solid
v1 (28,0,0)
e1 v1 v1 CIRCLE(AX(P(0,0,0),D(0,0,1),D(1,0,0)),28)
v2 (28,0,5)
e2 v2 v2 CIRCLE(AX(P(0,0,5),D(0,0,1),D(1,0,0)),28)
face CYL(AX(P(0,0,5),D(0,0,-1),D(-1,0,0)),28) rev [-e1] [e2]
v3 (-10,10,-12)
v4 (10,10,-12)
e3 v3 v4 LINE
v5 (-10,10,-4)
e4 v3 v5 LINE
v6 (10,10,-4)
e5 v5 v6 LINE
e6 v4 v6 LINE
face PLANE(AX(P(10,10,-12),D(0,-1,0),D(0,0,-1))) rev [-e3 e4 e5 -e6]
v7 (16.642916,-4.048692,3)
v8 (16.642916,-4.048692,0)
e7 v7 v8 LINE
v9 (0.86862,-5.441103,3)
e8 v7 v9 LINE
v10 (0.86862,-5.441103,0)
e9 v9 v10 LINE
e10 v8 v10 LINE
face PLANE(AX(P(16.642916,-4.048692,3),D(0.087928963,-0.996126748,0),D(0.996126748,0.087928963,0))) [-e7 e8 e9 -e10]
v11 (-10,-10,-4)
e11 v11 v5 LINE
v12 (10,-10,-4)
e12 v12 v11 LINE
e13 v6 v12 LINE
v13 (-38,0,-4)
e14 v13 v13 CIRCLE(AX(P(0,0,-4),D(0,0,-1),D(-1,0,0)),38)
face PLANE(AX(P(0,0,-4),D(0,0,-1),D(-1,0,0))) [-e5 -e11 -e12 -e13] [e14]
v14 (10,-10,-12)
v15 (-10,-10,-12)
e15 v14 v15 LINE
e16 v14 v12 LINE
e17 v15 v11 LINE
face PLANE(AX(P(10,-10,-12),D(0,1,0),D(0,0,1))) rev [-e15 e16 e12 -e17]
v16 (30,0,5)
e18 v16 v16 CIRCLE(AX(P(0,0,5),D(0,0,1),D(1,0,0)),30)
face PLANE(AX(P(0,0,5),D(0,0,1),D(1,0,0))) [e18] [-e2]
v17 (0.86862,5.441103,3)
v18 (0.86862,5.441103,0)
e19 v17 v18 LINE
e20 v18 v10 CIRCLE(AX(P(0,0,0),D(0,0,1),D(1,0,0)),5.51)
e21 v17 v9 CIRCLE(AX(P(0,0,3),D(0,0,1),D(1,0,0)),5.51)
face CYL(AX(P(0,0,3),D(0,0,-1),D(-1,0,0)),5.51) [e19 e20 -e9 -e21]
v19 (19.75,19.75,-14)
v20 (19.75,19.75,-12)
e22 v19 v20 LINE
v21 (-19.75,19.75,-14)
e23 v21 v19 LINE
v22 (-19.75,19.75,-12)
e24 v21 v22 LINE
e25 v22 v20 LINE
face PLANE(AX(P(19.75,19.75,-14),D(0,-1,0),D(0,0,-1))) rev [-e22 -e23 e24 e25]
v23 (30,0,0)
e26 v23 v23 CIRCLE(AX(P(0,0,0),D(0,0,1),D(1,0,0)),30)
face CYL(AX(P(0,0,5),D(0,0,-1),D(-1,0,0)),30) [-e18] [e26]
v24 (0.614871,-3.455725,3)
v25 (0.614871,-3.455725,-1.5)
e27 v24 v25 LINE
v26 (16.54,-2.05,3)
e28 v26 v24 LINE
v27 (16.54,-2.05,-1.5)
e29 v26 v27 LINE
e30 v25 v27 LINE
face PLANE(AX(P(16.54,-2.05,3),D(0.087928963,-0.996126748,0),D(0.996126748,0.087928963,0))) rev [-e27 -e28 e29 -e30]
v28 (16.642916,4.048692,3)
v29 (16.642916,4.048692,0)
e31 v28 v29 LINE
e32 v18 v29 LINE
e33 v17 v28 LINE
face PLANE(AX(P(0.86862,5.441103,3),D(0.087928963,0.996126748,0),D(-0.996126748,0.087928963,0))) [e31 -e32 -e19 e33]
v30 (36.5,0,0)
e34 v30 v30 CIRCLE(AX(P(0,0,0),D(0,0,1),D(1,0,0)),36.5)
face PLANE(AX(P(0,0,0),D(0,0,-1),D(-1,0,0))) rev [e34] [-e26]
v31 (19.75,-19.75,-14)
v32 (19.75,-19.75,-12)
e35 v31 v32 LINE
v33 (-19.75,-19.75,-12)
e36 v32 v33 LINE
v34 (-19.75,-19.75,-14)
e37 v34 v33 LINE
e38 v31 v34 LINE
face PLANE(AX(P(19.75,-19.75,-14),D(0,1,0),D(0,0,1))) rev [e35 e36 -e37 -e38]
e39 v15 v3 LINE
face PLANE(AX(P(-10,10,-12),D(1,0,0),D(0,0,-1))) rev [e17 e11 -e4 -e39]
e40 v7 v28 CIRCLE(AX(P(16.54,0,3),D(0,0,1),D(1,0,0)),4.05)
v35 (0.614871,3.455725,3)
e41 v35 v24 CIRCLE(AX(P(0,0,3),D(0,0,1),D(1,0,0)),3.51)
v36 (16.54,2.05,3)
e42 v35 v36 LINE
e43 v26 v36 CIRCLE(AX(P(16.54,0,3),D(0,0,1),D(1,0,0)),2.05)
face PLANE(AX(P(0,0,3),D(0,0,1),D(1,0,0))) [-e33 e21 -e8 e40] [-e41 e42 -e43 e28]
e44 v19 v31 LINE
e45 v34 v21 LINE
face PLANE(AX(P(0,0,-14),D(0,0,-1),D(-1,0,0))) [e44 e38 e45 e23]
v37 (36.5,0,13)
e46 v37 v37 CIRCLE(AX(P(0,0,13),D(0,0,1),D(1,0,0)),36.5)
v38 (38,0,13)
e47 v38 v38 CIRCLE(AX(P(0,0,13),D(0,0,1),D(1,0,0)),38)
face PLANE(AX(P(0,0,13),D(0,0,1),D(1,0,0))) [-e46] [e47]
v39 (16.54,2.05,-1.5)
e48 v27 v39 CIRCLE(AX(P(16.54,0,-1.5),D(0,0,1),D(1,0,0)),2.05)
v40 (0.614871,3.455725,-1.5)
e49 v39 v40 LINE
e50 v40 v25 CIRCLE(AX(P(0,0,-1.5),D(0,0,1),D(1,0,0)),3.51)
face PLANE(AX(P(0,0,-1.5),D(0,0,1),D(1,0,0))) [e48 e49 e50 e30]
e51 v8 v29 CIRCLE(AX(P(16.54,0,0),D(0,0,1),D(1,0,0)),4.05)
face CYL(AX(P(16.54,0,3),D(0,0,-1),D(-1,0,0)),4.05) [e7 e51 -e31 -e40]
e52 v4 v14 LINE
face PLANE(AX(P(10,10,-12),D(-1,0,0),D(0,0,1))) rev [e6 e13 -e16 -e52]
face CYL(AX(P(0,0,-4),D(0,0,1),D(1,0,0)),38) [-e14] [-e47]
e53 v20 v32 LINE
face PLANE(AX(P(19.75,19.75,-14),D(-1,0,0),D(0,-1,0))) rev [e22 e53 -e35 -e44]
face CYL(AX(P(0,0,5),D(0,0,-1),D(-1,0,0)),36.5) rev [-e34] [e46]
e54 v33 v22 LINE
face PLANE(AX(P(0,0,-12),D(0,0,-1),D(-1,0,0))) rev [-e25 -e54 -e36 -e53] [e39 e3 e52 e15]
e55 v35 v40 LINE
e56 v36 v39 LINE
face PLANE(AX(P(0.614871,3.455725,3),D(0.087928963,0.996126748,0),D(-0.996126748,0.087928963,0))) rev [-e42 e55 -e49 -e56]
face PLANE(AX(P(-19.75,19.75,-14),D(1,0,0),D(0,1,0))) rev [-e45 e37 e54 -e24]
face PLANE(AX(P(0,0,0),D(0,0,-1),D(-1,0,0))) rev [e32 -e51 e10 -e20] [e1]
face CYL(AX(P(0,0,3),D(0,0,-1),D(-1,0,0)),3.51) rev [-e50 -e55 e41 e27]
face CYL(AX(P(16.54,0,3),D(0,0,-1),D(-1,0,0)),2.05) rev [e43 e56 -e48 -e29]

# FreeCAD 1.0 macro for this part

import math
import FreeCAD as App
import Part
import Sketcher
from FreeCAD import Vector
Q = App.Units.Quantity


def add_polygon(sketch, points):
    """Adds a closed chain of lines whose ends are joined by coincident constraints."""
    first, n = sketch.GeometryCount, len(points)
    for a, b in zip(points, points[1:] + points[:1]):
        sketch.addGeometry(Part.LineSegment(App.Vector(*a, 0), App.Vector(*b, 0)), False)
    for i in range(n):
        sketch.addConstraint(Sketcher.Constraint("Coincident", first + i, 2, first + (i + 1) % n, 1))

doc = App.newDocument("Part")
params = doc.addObject("Spreadsheet::Sheet", "Params")
for row, (alias, value) in enumerate([
    ("sketch1_diameter", "60 mm"),
    ("sketch1_diameter2", "56 mm"),
    ("pad1_length", "5 mm"),
    ("sketch2_diameter", "76 mm"),
    ("sketch2_diameter2", "73 mm"),
    ("pad2_length", "5 mm"),
    ("sketch3_diameter", "76 mm"),
    ("pad3_length", "4 mm"),
    ("sketch4_radius", "5.51 mm"),
    ("sketch4_radius2", "4.05 mm"),
    ("sketch4_radius3", "2.05 mm"),
    ("sketch4_radius4", "3.51 mm"),
    ("pad4_length", "3 mm"),
    ("sketch5_radius", "3.51 mm"),
    ("sketch5_radius2", "2.05 mm"),
    ("pocket1_length", "1.5 mm"),
    ("sketch6_diameter", "76 mm"),
    ("sketch6_diameter2", "73 mm"),
    ("pad5_length", "8 mm"),
    ("sketch7_width", "20 mm"),
    ("pad6_length", "8 mm"),
    ("sketch8_width", "39.5 mm"),
    ("pad7_length", "2 mm"),
], start=1):
    params.set(f"A{row}", alias)
    params.set(f"B{row}", "=" + value)
    params.setAlias(f"B{row}", alias)

body = doc.addObject("PartDesign::Body", "Body")

# Sketch on XY plane
sketch1 = doc.addObject("Sketcher::SketchObject", "Sketch")
body.addObject(sketch1)
sketch1.AttachmentSupport = (doc.XY_Plane, [""])
sketch1.MapMode = "FlatFace"
sketch1.addGeometry(Part.Circle(Vector(0, 0, 0), Vector(0, 0, 1), 30), False)
sketch1.addGeometry(Part.Circle(Vector(0, 0, 0), Vector(0, 0, 1), 28), False)
sketch1.addConstraint(Sketcher.Constraint("Coincident", 0, 3, -1, 1))
sketch1.addConstraint(Sketcher.Constraint("Coincident", 1, 3, -1, 1))
sketch1.addConstraint(Sketcher.Constraint("Diameter", 0, Q("60 mm")))
sketch1.addConstraint(Sketcher.Constraint("Diameter", 1, Q("56 mm")))
sketch1.setExpression("Constraints[2]", "Params.sketch1_diameter")
sketch1.setExpression("Constraints[3]", "Params.sketch1_diameter2")
pad1 = doc.addObject("PartDesign::Pad", "Pad")
body.addObject(pad1)
pad1.Profile = sketch1
pad1.setExpression("Length", "Params.pad1_length")
body2 = doc.addObject("PartDesign::Body", "Body001")

# Sketch on XY plane
sketch2 = doc.addObject("Sketcher::SketchObject", "Sketch001")
body2.addObject(sketch2)
sketch2.AttachmentSupport = (doc.getObject("XY_Plane001"), [""])
sketch2.MapMode = "FlatFace"
sketch2.addGeometry(Part.Circle(Vector(0, 0, 0), Vector(0, 0, 1), 38), False)
sketch2.addGeometry(Part.Circle(Vector(0, 0, 0), Vector(0, 0, 1), 36), False)
sketch2.addConstraint(Sketcher.Constraint("Coincident", 0, 3, -1, 1))
sketch2.addConstraint(Sketcher.Constraint("Coincident", 1, 3, -1, 1))
sketch2.addConstraint(Sketcher.Constraint("Diameter", 0, Q("76 mm")))
sketch2.addConstraint(Sketcher.Constraint("Diameter", 1, Q("73 mm")))
sketch2.setExpression("Constraints[2]", "Params.sketch2_diameter")
sketch2.setExpression("Constraints[3]", "Params.sketch2_diameter2")
pad2 = doc.addObject("PartDesign::Pad", "Pad001")
body2.addObject(pad2)
pad2.Profile = sketch2
pad2.setExpression("Length", "Params.pad2_length")
body.AllowCompound = True
doc.recompute()

boolean = doc.addObject("PartDesign::Boolean", "Boolean")
body.addObject(boolean)
boolean.Type = "Fuse"
boolean.addObjects([body2])

# Sketch on XY plane
sketch3 = doc.addObject("Sketcher::SketchObject", "Sketch002")
body.addObject(sketch3)
sketch3.AttachmentSupport = (doc.XY_Plane, [""])
sketch3.MapMode = "FlatFace"
sketch3.addGeometry(Part.Circle(Vector(0, 0, 0), Vector(0, 0, 1), 38), False)
sketch3.addConstraint(Sketcher.Constraint("Coincident", 0, 3, -1, 1))
sketch3.addConstraint(Sketcher.Constraint("Diameter", 0, Q("76 mm")))
sketch3.setExpression("Constraints[1]", "Params.sketch3_diameter")
pad3 = doc.addObject("PartDesign::Pad", "Pad002")
body.addObject(pad3)
pad3.Profile = sketch3
pad3.setExpression("Length", "Params.pad3_length")
pad3.Reversed = True

# Sketch on XY plane
sketch4 = doc.addObject("Sketcher::SketchObject", "Sketch003")
body.addObject(sketch4)
sketch4.AttachmentSupport = (doc.XY_Plane, [""])
sketch4.MapMode = "FlatFace"
sketch4.addGeometry(Part.LineSegment(Vector(16.6, 4, 0), Vector(0.9, 5.4, 0)), False)
sketch4.addGeometry(Part.ArcOfCircle(Part.Circle(Vector(0, 0, 0), Vector(0, 0, 1), 5.5), math.radians(81), math.radians(279)), False)
sketch4.addGeometry(Part.LineSegment(Vector(0.9, -5.4, 0), Vector(16.6, -4, 0)), False)
sketch4.addGeometry(Part.ArcOfCircle(Part.Circle(Vector(16.5, 0, 0), Vector(0, 0, 1), 4), math.radians(-89), math.radians(89)), False)
sketch4.addGeometry(Part.LineSegment(Vector(0.6, 3.5, 0), Vector(16.5, 2, 0)), False)
sketch4.addGeometry(Part.ArcOfCircle(Part.Circle(Vector(16.5, 0, 0), Vector(0, 0, 1), 2), math.radians(-90), math.radians(90)), False)
sketch4.addGeometry(Part.LineSegment(Vector(16.5, -2, 0), Vector(0.6, -3.5, 0)), False)
sketch4.addGeometry(Part.ArcOfCircle(Part.Circle(Vector(0, 0, 0), Vector(0, 0, 1), 3.5), math.radians(80), math.radians(280)), False)
sketch4.addConstraint(Sketcher.Constraint("Coincident", 0, 2, 1, 1))
sketch4.addConstraint(Sketcher.Constraint("Coincident", 1, 2, 2, 1))
sketch4.addConstraint(Sketcher.Constraint("Coincident", 2, 2, 3, 1))
sketch4.addConstraint(Sketcher.Constraint("Coincident", 3, 2, 0, 1))
sketch4.addConstraint(Sketcher.Constraint("Coincident", 4, 2, 5, 2))
sketch4.addConstraint(Sketcher.Constraint("Coincident", 5, 1, 6, 1))
sketch4.addConstraint(Sketcher.Constraint("Coincident", 6, 2, 7, 2))
sketch4.addConstraint(Sketcher.Constraint("Coincident", 7, 1, 4, 1))
sketch4.addConstraint(Sketcher.Constraint("Coincident", 1, 3, -1, 1))
sketch4.addConstraint(Sketcher.Constraint("Coincident", 7, 3, -1, 1))
sketch4.addConstraint(Sketcher.Constraint("Coincident", 5, 3, 3, 3))
sketch4.addConstraint(Sketcher.Constraint("Symmetric", 2, 2, 3, 2, -1))
sketch4.addConstraint(Sketcher.Constraint("Parallel", 0, 4))
sketch4.addConstraint(Sketcher.Constraint("Parallel", 2, 6))
sketch4.addConstraint(Sketcher.Constraint("Vertical", 0, 2, 1, 2))
sketch4.addConstraint(Sketcher.Constraint("Vertical", 5, 3, 4, 2))
sketch4.addConstraint(Sketcher.Constraint("Vertical", 4, 2, 5, 1))
sketch4.addConstraint(Sketcher.Constraint("Radius", 1, Q("5.51 mm")))
sketch4.addConstraint(Sketcher.Constraint("Radius", 3, Q("4.05 mm")))
sketch4.addConstraint(Sketcher.Constraint("Radius", 5, Q("2.05 mm")))
sketch4.addConstraint(Sketcher.Constraint("Radius", 7, Q("3.51 mm")))
sketch4.addConstraint(Sketcher.Constraint("DistanceX", -1, 1, 3, 3, Q("16.54 mm")))
sketch4.addConstraint(Sketcher.Constraint("Distance", 0, Q("15.835631 mm")))
sketch4.addConstraint(Sketcher.Constraint("Distance", 4, Q("15.987051 mm")))
sketch4.setExpression("Constraints[17]", "Params.sketch4_radius")
sketch4.setExpression("Constraints[18]", "Params.sketch4_radius2")
sketch4.setExpression("Constraints[19]", "Params.sketch4_radius3")
sketch4.setExpression("Constraints[20]", "Params.sketch4_radius4")
pad4 = doc.addObject("PartDesign::Pad", "Pad003")
body.addObject(pad4)
pad4.Profile = sketch4
pad4.setExpression("Length", "Params.pad4_length")

# Sketch on XY plane
sketch5 = doc.addObject("Sketcher::SketchObject", "Sketch004")
body.addObject(sketch5)
sketch5.AttachmentSupport = (doc.XY_Plane, [""])
sketch5.MapMode = "FlatFace"
sketch5.addGeometry(Part.LineSegment(Vector(16.5, 2, 0), Vector(0.6, 3.5, 0)), False)
sketch5.addGeometry(Part.ArcOfCircle(Part.Circle(Vector(0, 0, 0), Vector(0, 0, 1), 3.5), math.radians(80), math.radians(280)), False)
sketch5.addGeometry(Part.LineSegment(Vector(0.6, -3.5, 0), Vector(16.5, -2, 0)), False)
sketch5.addGeometry(Part.ArcOfCircle(Part.Circle(Vector(16.5, 0, 0), Vector(0, 0, 1), 2), math.radians(-90), math.radians(90)), False)
sketch5.addConstraint(Sketcher.Constraint("Coincident", 0, 2, 1, 1))
sketch5.addConstraint(Sketcher.Constraint("Coincident", 1, 2, 2, 1))
sketch5.addConstraint(Sketcher.Constraint("Coincident", 2, 2, 3, 1))
sketch5.addConstraint(Sketcher.Constraint("Coincident", 3, 2, 0, 1))
sketch5.addConstraint(Sketcher.Constraint("Coincident", 1, 3, -1, 1))
sketch5.addConstraint(Sketcher.Constraint("Symmetric", 2, 2, 3, 2, -1))
sketch5.addConstraint(Sketcher.Constraint("Vertical", 0, 2, 1, 2))
sketch5.addConstraint(Sketcher.Constraint("Vertical", 3, 3, 2, 2))
sketch5.addConstraint(Sketcher.Constraint("Radius", 1, Q("3.51 mm")))
sketch5.addConstraint(Sketcher.Constraint("Radius", 3, Q("2.05 mm")))
sketch5.addConstraint(Sketcher.Constraint("DistanceX", -1, 1, 3, 3, Q("16.54 mm")))
sketch5.addConstraint(Sketcher.Constraint("Distance", 0, Q("15.987051 mm")))
sketch5.setExpression("Constraints[8]", "Params.sketch5_radius")
sketch5.setExpression("Constraints[9]", "Params.sketch5_radius2")
pocket1 = doc.addObject("PartDesign::Pocket", "Pocket")
body.addObject(pocket1)
pocket1.Profile = sketch5
pocket1.setExpression("Length", "Params.pocket1_length")

# Sketch on XY plane
sketch6 = doc.addObject("Sketcher::SketchObject", "Sketch005")
body.addObject(sketch6)
sketch6.AttachmentSupport = (doc.XY_Plane, [""])
sketch6.MapMode = "FlatFace"
sketch6.AttachmentOffset = App.Placement(Vector(0, 0, 5), App.Rotation())
sketch6.addGeometry(Part.Circle(Vector(0, 0, 0), Vector(0, 0, 1), 38), False)
sketch6.addGeometry(Part.Circle(Vector(0, 0, 0), Vector(0, 0, 1), 36), False)
sketch6.addConstraint(Sketcher.Constraint("Coincident", 0, 3, -1, 1))
sketch6.addConstraint(Sketcher.Constraint("Coincident", 1, 3, -1, 1))
sketch6.addConstraint(Sketcher.Constraint("Diameter", 0, Q("76 mm")))
sketch6.addConstraint(Sketcher.Constraint("Diameter", 1, Q("73 mm")))
sketch6.setExpression("Constraints[2]", "Params.sketch6_diameter")
sketch6.setExpression("Constraints[3]", "Params.sketch6_diameter2")
pad5 = doc.addObject("PartDesign::Pad", "Pad004")
body.addObject(pad5)
pad5.Profile = sketch6
pad5.setExpression("Length", "Params.pad5_length")

# Sketch on XY plane
sketch7 = doc.addObject("Sketcher::SketchObject", "Sketch006")
body.addObject(sketch7)
sketch7.AttachmentSupport = (doc.XY_Plane, [""])
sketch7.MapMode = "FlatFace"
sketch7.AttachmentOffset = App.Placement(Vector(0, 0, -4), App.Rotation())
add_polygon(sketch7, [(10, 10), (10, -10), (-10, -10), (-10, 10)])  # lines 0-3
sketch7.addConstraint(Sketcher.Constraint("Vertical", 0))
sketch7.addConstraint(Sketcher.Constraint("Horizontal", 1))
sketch7.addConstraint(Sketcher.Constraint("Vertical", 2))
sketch7.addConstraint(Sketcher.Constraint("Horizontal", 3))
sketch7.addConstraint(Sketcher.Constraint("Symmetric", 0, 2, 2, 2, -1, 1))
sketch7.addConstraint(Sketcher.Constraint("Equal", 3, 0))
sketch7.addConstraint(Sketcher.Constraint("DistanceX", 1, 2, 1, 1, Q("20 mm")))
sketch7.setExpression("Constraints[10]", "Params.sketch7_width")
pad6 = doc.addObject("PartDesign::Pad", "Pad005")
body.addObject(pad6)
pad6.Profile = sketch7
pad6.setExpression("Length", "Params.pad6_length")
pad6.Reversed = True

# Sketch on XY plane
sketch8 = doc.addObject("Sketcher::SketchObject", "Sketch007")
body.addObject(sketch8)
sketch8.AttachmentSupport = (doc.XY_Plane, [""])
sketch8.MapMode = "FlatFace"
sketch8.AttachmentOffset = App.Placement(Vector(0, 0, -12), App.Rotation())
add_polygon(sketch8, [(20, 20), (20, -20), (-20, -20), (-20, 20)])  # lines 0-3
sketch8.addConstraint(Sketcher.Constraint("Vertical", 0))
sketch8.addConstraint(Sketcher.Constraint("Horizontal", 1))
sketch8.addConstraint(Sketcher.Constraint("Vertical", 2))
sketch8.addConstraint(Sketcher.Constraint("Horizontal", 3))
sketch8.addConstraint(Sketcher.Constraint("Symmetric", 0, 2, 2, 2, -1, 1))
sketch8.addConstraint(Sketcher.Constraint("Equal", 3, 0))
sketch8.addConstraint(Sketcher.Constraint("DistanceX", 1, 2, 1, 1, Q("39.5 mm")))
sketch8.setExpression("Constraints[10]", "Params.sketch8_width")
pad7 = doc.addObject("PartDesign::Pad", "Pad006")
body.addObject(pad7)
pad7.Profile = sketch8
pad7.setExpression("Length", "Params.pad7_length")
pad7.Reversed = True

doc.recompute()
